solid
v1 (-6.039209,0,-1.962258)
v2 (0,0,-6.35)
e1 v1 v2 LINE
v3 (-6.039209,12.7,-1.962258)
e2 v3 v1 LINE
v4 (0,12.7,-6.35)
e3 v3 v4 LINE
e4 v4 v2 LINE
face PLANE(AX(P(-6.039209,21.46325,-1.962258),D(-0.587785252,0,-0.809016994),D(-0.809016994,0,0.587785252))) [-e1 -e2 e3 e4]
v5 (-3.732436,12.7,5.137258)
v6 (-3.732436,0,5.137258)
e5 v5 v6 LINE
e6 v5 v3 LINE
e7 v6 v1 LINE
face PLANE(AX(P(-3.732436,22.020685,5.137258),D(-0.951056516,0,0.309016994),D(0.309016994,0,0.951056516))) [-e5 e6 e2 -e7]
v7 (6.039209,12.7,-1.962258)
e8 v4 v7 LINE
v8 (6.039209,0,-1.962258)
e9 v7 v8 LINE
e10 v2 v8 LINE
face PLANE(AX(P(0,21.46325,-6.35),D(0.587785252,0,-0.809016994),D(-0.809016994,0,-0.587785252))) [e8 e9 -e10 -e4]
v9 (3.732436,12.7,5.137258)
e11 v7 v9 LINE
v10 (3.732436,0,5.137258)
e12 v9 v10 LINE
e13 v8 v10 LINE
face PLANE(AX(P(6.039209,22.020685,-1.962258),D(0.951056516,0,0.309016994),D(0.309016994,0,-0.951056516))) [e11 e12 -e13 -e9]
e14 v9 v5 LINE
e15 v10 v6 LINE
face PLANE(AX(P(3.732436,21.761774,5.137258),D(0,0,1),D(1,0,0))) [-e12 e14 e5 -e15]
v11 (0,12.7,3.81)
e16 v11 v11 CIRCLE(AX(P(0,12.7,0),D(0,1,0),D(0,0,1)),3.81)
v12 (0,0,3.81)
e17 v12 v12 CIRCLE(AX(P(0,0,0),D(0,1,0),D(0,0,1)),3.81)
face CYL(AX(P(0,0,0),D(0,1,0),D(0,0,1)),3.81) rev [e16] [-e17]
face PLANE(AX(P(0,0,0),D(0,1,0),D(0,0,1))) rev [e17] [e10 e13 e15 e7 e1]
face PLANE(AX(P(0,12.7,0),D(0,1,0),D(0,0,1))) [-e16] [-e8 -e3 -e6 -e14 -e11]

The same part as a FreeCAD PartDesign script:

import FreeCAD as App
import Part
import Sketcher
from FreeCAD import Vector
Q = App.Units.Quantity

doc = App.newDocument("Part")
body = doc.addObject("PartDesign::Body", "Body")

# Sketch on XZ plane
sketch1 = body.newObject("Sketcher::SketchObject", "Sketch")
sketch1.AttachmentSupport = (doc.getObject("XZ_Plane"), [""])
sketch1.MapMode = "FlatFace"
sketch1.addGeometry([
    Part.LineSegment(Vector(6.039209, -1.962258, 0), Vector(0, -6.35, 0)),
    Part.LineSegment(Vector(0, -6.35, 0), Vector(0, 0, 0)),
    Part.LineSegment(Vector(0, 0, 0), Vector(6.039209, -1.962258, 0)),
], False)
sketch1.addConstraint([
    Sketcher.Constraint("Coincident", 0, 2, 1, 1),
    Sketcher.Constraint("Coincident", 1, 2, 2, 1),
    Sketcher.Constraint("Coincident", 2, 2, 0, 1),
    Sketcher.Constraint("Vertical", 1),
    Sketcher.Constraint("Coincident", 1, 2, -1, 1),
    Sketcher.Constraint("Angle", 0, Q("-144 deg")),
    Sketcher.Constraint("Angle", 2, Q("-18 deg")),
    Sketcher.Constraint("DistanceY", 1, 1, 1, 2, Q("0.25 in")),
])
pad1 = body.newObject("PartDesign::Pad", "Pad")
pad1.Profile = sketch1
pad1.Length = Q("0.5 in")
pad1.Reversed = True
doc.recompute()

polarpattern = body.newObject("PartDesign::PolarPattern", "PolarPattern")
polarpattern.Originals = [pad1]
polarpattern.Axis = (doc.getObject("Y_Axis"), [""])
polarpattern.Angle = 360
polarpattern.Occurrences = 5
body.Tip = polarpattern

# Sketch on XZ plane
sketch2 = body.newObject("Sketcher::SketchObject", "Sketch001")
sketch2.AttachmentSupport = (doc.getObject("XZ_Plane"), [""])
sketch2.MapMode = "FlatFace"
sketch2.AttachmentOffset = App.Placement(Vector(0, 0, -0.5 * 25.4), App.Rotation())
sketch2.addGeometry(Part.Circle(Vector(0, 0, 0), Vector(0, 0, 1), 3.81), False)
sketch2.addConstraint([
    Sketcher.Constraint("Coincident", 0, 3, -1, 1),
    Sketcher.Constraint("Diameter", 0, Q("0.3 in")),
])
pocket1 = body.newObject("PartDesign::Pocket", "Pocket")
pocket1.Profile = sketch2
pocket1.Type = "ThroughAll"
pocket1.Reversed = True

doc.recompute()
